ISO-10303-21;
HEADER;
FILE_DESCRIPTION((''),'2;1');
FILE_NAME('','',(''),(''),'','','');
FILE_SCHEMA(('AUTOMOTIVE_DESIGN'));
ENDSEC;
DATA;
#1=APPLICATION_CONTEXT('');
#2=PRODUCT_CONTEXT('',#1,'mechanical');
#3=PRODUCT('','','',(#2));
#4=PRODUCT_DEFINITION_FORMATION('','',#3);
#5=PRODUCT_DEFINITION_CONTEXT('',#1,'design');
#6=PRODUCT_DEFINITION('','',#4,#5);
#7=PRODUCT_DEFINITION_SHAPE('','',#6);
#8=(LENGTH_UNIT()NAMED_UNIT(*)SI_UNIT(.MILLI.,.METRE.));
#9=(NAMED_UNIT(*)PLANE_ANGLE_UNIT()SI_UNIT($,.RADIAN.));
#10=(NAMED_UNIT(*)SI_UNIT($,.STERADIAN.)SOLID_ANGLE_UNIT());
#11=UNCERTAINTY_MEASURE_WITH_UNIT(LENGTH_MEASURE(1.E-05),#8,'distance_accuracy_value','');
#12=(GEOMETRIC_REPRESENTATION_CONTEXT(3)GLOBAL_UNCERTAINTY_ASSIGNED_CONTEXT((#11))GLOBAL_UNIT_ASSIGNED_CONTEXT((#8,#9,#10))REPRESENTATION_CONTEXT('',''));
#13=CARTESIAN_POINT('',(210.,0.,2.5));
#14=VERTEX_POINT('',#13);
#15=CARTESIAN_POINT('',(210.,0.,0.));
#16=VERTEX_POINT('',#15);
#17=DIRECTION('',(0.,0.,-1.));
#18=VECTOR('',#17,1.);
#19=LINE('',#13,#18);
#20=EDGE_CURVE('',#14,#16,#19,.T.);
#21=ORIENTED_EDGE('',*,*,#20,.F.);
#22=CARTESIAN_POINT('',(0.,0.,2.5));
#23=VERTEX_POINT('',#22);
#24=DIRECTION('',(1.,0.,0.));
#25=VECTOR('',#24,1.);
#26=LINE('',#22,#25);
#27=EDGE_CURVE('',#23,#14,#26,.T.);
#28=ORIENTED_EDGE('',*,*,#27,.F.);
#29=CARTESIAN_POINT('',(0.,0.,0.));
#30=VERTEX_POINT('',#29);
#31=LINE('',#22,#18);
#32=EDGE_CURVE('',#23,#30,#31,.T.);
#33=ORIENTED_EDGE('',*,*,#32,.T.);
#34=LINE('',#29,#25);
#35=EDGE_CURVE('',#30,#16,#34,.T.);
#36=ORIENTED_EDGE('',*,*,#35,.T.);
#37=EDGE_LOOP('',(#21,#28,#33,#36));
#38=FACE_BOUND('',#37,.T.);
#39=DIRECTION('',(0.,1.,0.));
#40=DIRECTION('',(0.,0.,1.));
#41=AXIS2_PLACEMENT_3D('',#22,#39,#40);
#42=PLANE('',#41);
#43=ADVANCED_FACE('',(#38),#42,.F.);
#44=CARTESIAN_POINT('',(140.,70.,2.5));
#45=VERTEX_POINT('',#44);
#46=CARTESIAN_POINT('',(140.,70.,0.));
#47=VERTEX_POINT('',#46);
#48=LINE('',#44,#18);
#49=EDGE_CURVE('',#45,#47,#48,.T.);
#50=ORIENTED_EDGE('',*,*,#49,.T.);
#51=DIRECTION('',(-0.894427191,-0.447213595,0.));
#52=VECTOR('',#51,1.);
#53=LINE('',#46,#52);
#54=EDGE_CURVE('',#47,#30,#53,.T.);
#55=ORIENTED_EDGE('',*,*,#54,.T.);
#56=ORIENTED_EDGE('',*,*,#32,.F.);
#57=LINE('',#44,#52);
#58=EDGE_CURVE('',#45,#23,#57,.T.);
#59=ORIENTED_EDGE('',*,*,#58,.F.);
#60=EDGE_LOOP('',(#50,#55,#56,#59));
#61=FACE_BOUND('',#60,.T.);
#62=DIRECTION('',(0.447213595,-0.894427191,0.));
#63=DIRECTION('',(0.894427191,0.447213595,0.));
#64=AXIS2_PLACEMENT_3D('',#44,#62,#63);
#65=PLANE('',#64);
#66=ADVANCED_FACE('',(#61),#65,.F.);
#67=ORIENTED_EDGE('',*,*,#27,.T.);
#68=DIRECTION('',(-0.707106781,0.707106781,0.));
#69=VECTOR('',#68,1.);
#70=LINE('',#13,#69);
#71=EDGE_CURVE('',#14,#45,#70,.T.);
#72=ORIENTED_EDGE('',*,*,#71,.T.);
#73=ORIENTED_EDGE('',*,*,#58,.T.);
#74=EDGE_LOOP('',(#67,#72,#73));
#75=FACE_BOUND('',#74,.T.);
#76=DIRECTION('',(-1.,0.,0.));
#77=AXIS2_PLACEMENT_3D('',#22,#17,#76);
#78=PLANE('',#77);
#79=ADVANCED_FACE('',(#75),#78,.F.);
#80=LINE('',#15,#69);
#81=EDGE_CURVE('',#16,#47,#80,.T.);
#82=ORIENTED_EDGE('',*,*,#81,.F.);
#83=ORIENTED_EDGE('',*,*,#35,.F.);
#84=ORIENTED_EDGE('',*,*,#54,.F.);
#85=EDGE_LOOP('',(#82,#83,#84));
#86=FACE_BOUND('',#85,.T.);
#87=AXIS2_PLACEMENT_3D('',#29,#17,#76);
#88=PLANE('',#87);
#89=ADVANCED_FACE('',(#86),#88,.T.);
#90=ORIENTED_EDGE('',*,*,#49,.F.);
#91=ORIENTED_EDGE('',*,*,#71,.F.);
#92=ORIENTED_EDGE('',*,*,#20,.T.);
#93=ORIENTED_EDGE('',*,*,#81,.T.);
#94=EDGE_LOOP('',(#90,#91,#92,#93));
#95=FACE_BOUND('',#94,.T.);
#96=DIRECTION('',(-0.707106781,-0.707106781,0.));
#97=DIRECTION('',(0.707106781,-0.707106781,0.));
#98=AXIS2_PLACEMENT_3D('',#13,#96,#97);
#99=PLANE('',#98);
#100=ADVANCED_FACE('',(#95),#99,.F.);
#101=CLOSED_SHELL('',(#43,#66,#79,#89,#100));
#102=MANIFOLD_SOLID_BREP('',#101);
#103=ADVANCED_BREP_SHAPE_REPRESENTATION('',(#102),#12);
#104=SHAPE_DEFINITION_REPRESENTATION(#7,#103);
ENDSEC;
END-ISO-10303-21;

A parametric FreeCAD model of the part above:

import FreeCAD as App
import Part
import Sketcher

V = App.Vector
Q = App.Units.Quantity

doc = App.newDocument("Part")
body = doc.addObject("PartDesign::Body", "Body")

sketch1 = body.newObject("Sketcher::SketchObject", "Sketch")
sketch1.AttachmentSupport = (doc.getObject("XY_Plane"), [""])
sketch1.MapMode = "FlatFace"
sketch1.addGeometry([
    Part.LineSegment(V(0, 0, 0), V(210, 0, 0)),
    Part.LineSegment(V(210, 0, 0), V(140, 70, 0)),
    Part.LineSegment(V(140, 70, 0), V(0, 0, 0)),
], False)
sketch1.addConstraint([
    Sketcher.Constraint("Coincident", 0, 2, 1, 1),
    Sketcher.Constraint("Coincident", 1, 2, 2, 1),
    Sketcher.Constraint("Coincident", 2, 2, 0, 1),
    Sketcher.Constraint("Horizontal", 0),
    Sketcher.Constraint("Coincident", 2, 2, -1, 1),
    Sketcher.Constraint("DistanceX", 0, 1, 0, 2, Q("210 mm")),
    Sketcher.Constraint("Angle", 1, Q("135 deg")),
    Sketcher.Constraint("DistanceX", -1, 1, 1, 2, Q("140 mm")),
])
pad1 = body.newObject("PartDesign::Pad", "Pad")
pad1.Profile = sketch1
pad1.Length = 2.5

doc.recompute()
